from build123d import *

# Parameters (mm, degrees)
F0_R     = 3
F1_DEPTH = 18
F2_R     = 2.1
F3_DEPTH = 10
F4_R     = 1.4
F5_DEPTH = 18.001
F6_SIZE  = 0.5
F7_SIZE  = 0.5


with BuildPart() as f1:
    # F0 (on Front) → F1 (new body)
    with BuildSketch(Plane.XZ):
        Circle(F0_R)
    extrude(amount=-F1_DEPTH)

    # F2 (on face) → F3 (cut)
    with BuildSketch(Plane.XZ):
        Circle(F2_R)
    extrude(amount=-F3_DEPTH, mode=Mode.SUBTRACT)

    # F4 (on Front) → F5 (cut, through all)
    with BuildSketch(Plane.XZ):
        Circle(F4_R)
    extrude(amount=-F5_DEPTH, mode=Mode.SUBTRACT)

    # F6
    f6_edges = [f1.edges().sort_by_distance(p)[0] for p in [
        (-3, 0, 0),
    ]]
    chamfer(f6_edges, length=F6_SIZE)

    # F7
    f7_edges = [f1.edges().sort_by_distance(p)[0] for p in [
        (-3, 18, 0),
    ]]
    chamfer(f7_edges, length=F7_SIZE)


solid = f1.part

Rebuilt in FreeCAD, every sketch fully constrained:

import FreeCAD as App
import Part
import Sketcher
from FreeCAD import Vector
Q = App.Units.Quantity


def edges_at(feature, points):
    """Names of the edges that pass closest to the given points."""
    edges = feature.Shape.Edges
    near = lambda p: min(range(len(edges)), key=lambda i: edges[i].distToShape(Part.Vertex(*p))[0])
    return sorted({f"Edge{near(p) + 1}" for p in points})

doc = App.newDocument("Part")
body = doc.addObject("PartDesign::Body", "Body")

# Sketch on XZ plane
sketch1 = body.newObject("Sketcher::SketchObject", "Sketch")
sketch1.AttachmentSupport = (doc.getObject("XZ_Plane"), [""])
sketch1.MapMode = "FlatFace"
sketch1.addGeometry(Part.Circle(Vector(0, 0, 0), Vector(0, 0, 1), 3), False)
sketch1.addConstraint([
    Sketcher.Constraint("Coincident", 0, 3, -1, 1),
    Sketcher.Constraint("Diameter", 0, Q("6 mm")),
])
pad1 = body.newObject("PartDesign::Pad", "Pad")
pad1.Profile = sketch1
pad1.Length = 18
pad1.Reversed = True

# Sketch on XZ plane
sketch2 = body.newObject("Sketcher::SketchObject", "Sketch001")
sketch2.AttachmentSupport = (doc.getObject("XZ_Plane"), [""])
sketch2.MapMode = "FlatFace"
sketch2.addGeometry(Part.Circle(Vector(0, 0, 0), Vector(0, 0, 1), 2.1), False)
sketch2.addConstraint([
    Sketcher.Constraint("Coincident", 0, 3, -1, 1),
    Sketcher.Constraint("Diameter", 0, Q("4.2 mm")),
])
pocket1 = body.newObject("PartDesign::Pocket", "Pocket")
pocket1.Profile = sketch2
pocket1.Length = 10

# Sketch on XZ plane
sketch3 = body.newObject("Sketcher::SketchObject", "Sketch002")
sketch3.AttachmentSupport = (doc.getObject("XZ_Plane"), [""])
sketch3.MapMode = "FlatFace"
sketch3.addGeometry(Part.Circle(Vector(0, 0, 0), Vector(0, 0, 1), 1.4), False)
sketch3.addConstraint([
    Sketcher.Constraint("Coincident", 0, 3, -1, 1),
    Sketcher.Constraint("Diameter", 0, Q("2.8 mm")),
])
pocket2 = body.newObject("PartDesign::Pocket", "Pocket001")
pocket2.Profile = sketch3
pocket2.Type = "ThroughAll"
doc.recompute()

chamfer = body.newObject("PartDesign::Chamfer", "Chamfer")
chamfer.Base = (pocket2, edges_at(pocket2, [(-3, 0, 0)]))
chamfer.Size = 0.5
doc.recompute()

chamfer2 = body.newObject("PartDesign::Chamfer", "Chamfer001")
chamfer2.Base = (chamfer, edges_at(chamfer, [(-3, 18, 0)]))
chamfer2.Size = 0.5

doc.recompute()
